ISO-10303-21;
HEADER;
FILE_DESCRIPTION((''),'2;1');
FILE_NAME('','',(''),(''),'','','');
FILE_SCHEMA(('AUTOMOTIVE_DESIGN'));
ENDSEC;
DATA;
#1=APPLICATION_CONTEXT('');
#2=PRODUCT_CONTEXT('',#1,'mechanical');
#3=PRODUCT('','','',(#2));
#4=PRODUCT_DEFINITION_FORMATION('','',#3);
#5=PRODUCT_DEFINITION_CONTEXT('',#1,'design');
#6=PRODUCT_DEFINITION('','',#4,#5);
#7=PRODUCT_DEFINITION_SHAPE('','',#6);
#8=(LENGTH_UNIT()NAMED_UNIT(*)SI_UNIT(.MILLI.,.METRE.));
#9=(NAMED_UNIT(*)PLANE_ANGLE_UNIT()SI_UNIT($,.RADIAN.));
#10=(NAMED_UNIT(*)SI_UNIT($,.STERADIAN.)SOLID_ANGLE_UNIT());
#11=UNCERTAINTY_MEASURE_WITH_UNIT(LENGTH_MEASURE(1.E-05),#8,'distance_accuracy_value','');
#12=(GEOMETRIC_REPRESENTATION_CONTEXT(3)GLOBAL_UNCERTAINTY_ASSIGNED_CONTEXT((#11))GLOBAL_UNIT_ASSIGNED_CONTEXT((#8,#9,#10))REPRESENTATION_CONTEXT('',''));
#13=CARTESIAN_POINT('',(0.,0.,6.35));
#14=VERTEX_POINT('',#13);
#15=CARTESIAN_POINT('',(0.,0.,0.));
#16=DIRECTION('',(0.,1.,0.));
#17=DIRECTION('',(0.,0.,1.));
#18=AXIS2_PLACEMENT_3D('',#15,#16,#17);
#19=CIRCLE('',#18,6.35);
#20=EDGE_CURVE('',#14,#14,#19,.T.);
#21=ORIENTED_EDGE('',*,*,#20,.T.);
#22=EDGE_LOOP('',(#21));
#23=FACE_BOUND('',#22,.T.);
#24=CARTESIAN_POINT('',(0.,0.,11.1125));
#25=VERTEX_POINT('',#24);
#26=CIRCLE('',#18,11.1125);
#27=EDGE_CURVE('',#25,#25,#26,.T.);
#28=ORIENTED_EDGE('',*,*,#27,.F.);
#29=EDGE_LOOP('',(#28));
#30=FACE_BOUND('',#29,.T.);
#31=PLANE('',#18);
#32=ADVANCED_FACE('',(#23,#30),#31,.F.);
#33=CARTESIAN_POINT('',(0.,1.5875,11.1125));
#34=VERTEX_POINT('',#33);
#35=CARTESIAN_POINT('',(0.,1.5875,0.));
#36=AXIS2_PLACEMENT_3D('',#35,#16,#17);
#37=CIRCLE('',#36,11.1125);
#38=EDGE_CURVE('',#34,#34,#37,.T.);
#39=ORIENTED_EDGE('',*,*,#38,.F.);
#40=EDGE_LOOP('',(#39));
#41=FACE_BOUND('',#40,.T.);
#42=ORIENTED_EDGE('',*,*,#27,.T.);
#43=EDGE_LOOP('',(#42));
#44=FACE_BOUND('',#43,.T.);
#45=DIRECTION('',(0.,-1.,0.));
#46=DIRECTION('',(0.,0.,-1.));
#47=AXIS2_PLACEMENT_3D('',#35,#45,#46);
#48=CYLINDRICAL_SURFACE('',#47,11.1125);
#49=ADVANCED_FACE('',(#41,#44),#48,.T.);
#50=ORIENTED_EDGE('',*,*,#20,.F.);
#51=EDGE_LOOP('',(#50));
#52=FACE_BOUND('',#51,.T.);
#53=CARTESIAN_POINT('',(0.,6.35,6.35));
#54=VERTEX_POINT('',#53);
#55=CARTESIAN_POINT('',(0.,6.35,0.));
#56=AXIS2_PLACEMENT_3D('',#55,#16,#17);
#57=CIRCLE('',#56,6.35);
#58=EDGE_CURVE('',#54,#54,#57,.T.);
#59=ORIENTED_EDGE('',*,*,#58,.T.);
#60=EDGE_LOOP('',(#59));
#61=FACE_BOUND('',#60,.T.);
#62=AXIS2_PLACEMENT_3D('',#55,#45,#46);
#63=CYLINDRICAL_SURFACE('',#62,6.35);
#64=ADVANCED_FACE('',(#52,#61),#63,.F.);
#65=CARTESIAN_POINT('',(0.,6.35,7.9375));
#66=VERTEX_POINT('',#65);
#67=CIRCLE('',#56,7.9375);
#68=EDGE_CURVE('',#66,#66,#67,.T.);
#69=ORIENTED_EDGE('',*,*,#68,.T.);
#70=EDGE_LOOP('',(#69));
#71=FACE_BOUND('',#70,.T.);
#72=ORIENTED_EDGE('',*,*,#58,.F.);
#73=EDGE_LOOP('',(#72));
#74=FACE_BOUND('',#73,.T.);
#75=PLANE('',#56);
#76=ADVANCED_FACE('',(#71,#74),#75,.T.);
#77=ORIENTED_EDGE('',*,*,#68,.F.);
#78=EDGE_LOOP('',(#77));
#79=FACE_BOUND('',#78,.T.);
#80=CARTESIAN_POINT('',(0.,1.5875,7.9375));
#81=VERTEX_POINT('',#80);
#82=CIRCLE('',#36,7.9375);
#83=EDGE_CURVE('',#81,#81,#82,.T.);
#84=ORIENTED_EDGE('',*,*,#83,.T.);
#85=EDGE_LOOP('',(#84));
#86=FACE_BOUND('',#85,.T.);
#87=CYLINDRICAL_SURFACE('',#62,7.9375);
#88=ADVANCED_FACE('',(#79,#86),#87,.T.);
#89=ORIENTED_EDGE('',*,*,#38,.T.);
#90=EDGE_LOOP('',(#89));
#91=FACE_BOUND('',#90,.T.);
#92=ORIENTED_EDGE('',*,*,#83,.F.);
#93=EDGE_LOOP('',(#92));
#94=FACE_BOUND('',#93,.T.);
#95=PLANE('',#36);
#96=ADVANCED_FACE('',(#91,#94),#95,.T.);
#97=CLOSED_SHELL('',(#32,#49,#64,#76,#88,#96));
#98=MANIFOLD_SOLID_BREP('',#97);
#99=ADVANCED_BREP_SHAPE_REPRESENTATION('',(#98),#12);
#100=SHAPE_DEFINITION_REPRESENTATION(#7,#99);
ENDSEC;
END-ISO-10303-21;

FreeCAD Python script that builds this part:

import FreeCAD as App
import Part
import Sketcher
from FreeCAD import Vector
Q = App.Units.Quantity

doc = App.newDocument("Part")
params = doc.addObject("Spreadsheet::Sheet", "Params")
for row, (alias, value) in enumerate([
    ("sketch1_diameter", "0.5 in"),
    ("sketch1_diameter2", "0.625 in"),
    ("pad1_length", "0.25 in"),
    ("sketch2_diameter", "0.875 in"),
    ("sketch2_diameter2", "0.625 in"),
    ("pad2_length", "0.0625 in"),
], start=1):
    params.set(f"A{row}", alias)
    params.set(f"B{row}", "=" + value)
    params.setAlias(f"B{row}", alias)

body = doc.addObject("PartDesign::Body", "Body")

sketch1 = body.newObject("Sketcher::SketchObject", "Sketch")
sketch1.AttachmentSupport = (doc.getObject("XZ_Plane"), [""])
sketch1.MapMode = "FlatFace"
sketch1.addGeometry([
    Part.Circle(Vector(0, 0, 0), Vector(0, 0, 1), 7.9375),
    Part.Circle(Vector(0, 0, 0), Vector(0, 0, 1), 6.35),
], False)
sketch1.addConstraint([
    Sketcher.Constraint("Coincident", 0, 3, -1, 1),
    Sketcher.Constraint("Coincident", 1, 3, -1, 1),
    Sketcher.Constraint("Diameter", 1, Q("0.5 in")),
    Sketcher.Constraint("Diameter", 0, Q("0.625 in")),
])
sketch1.setExpression("Constraints[2]", "Params.sketch1_diameter")
sketch1.setExpression("Constraints[3]", "Params.sketch1_diameter2")
pad1 = body.newObject("PartDesign::Pad", "Pad")
pad1.Profile = sketch1
pad1.setExpression("Length", "Params.pad1_length")
pad1.Reversed = True

sketch2 = body.newObject("Sketcher::SketchObject", "Sketch001")
sketch2.AttachmentSupport = (doc.getObject("XZ_Plane"), [""])
sketch2.MapMode = "FlatFace"
sketch2.addGeometry([
    Part.Circle(Vector(0, 0, 0), Vector(0, 0, 1), 11.1125),
    Part.Circle(Vector(0, 0, 0), Vector(0, 0, 1), 7.9375),
], False)
sketch2.addConstraint([
    Sketcher.Constraint("Coincident", 0, 3, -1, 1),
    Sketcher.Constraint("Coincident", 1, 3, -1, 1),
    Sketcher.Constraint("Diameter", 0, Q("0.875 in")),
    Sketcher.Constraint("Diameter", 1, Q("0.625 in")),
])
sketch2.setExpression("Constraints[2]", "Params.sketch2_diameter")
sketch2.setExpression("Constraints[3]", "Params.sketch2_diameter2")
pad2 = body.newObject("PartDesign::Pad", "Pad001")
pad2.Profile = sketch2
pad2.setExpression("Length", "Params.pad2_length")
pad2.Reversed = True

doc.recompute()
